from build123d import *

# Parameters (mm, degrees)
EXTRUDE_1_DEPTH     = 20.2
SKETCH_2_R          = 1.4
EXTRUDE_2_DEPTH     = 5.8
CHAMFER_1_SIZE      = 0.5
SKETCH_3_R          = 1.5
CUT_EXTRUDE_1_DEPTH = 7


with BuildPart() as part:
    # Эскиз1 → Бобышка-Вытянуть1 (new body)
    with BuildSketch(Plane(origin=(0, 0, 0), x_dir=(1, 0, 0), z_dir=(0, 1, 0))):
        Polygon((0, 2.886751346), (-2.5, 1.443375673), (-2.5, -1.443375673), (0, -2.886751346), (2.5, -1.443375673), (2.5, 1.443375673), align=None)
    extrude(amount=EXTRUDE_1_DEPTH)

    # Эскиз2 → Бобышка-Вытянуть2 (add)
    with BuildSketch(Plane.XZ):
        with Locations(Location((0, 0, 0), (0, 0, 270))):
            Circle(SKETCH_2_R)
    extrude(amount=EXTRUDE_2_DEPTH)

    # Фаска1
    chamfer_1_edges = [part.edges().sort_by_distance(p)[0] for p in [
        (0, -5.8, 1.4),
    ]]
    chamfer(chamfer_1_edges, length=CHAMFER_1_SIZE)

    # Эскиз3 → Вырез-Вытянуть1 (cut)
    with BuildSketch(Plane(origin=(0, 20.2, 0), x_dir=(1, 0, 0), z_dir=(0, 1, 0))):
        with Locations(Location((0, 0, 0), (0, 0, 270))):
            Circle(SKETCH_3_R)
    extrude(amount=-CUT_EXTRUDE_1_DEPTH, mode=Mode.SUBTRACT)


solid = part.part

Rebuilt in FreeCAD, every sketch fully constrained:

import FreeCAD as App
import Part
import Sketcher

V = App.Vector
Q = App.Units.Quantity


def edges_at(feature, points):
    """Names of the edges that pass closest to the given points."""
    edges = feature.Shape.Edges
    near = lambda p: min(range(len(edges)), key=lambda i: edges[i].distToShape(Part.Vertex(*p))[0])
    return sorted({f"Edge{near(p) + 1}" for p in points})

doc = App.newDocument("Part")
body = doc.addObject("PartDesign::Body", "Body")

# Sketch on XZ plane
sketch1 = body.newObject("Sketcher::SketchObject", "Sketch")
sketch1.AttachmentSupport = (doc.getObject("XZ_Plane"), [""])
sketch1.MapMode = "FlatFace"
sketch1.addGeometry([
    Part.LineSegment(V(0, -2.9, 0), V(-2.5, -1.4, 0)),  # 0
    Part.LineSegment(V(-2.5, -1.4, 0), V(-2.5, 1.4, 0)),  # 1
    Part.LineSegment(V(-2.5, 1.4, 0), V(0, 2.9, 0)),  # 2
    Part.LineSegment(V(0, 2.9, 0), V(2.5, 1.4, 0)),  # 3
    Part.LineSegment(V(2.5, 1.4, 0), V(2.5, -1.4, 0)),  # 4
    Part.LineSegment(V(2.5, -1.4, 0), V(0, -2.9, 0)),  # 5
], False)
sketch1.addConstraint([
    Sketcher.Constraint("Coincident", 0, 2, 1, 1),
    Sketcher.Constraint("Coincident", 1, 2, 2, 1),
    Sketcher.Constraint("Coincident", 2, 2, 3, 1),
    Sketcher.Constraint("Coincident", 3, 2, 4, 1),
    Sketcher.Constraint("Coincident", 4, 2, 5, 1),
    Sketcher.Constraint("Coincident", 5, 2, 0, 1),
    Sketcher.Constraint("Vertical", 1),
    Sketcher.Constraint("Vertical", 4),
    Sketcher.Constraint("Symmetric", 0, 2, 3, 2, -1, 1),
    Sketcher.Constraint("Symmetric", 2, 2, 5, 2, -1, 1),
    Sketcher.Constraint("PointOnObject", 2, 2, -2),
    Sketcher.Constraint("Parallel", 2, 5),
    Sketcher.Constraint("Horizontal", 1, 2, 3, 2),
    Sketcher.Constraint("Angle", 0, Q("150 deg")),
    Sketcher.Constraint("DistanceX", 1, 2, 3, 2, 5.0),
    Sketcher.Constraint("DistanceY", 1, 1, 1, 2, 2.886751),
])
pad1 = body.newObject("PartDesign::Pad", "Pad")
pad1.Profile = sketch1
pad1.Length = 20.2
pad1.Reversed = True

# Sketch on XZ plane
sketch2 = body.newObject("Sketcher::SketchObject", "Sketch001")
sketch2.AttachmentSupport = (doc.getObject("XZ_Plane"), [""])
sketch2.MapMode = "FlatFace"
sketch2.addGeometry(Part.Circle(V(0, 0, 0), V(0, 0, 1), 1.4), False)
sketch2.addConstraint([
    Sketcher.Constraint("Coincident", 0, 3, -1, 1),
    Sketcher.Constraint("Diameter", 0, 2.8),
])
pad2 = body.newObject("PartDesign::Pad", "Pad001")
pad2.Profile = sketch2
pad2.Length = 5.8
doc.recompute()

chamfer = body.newObject("PartDesign::Chamfer", "Chamfer")
chamfer.Base = (pad2, edges_at(pad2, [(0, -5.8, 1.4)]))
chamfer.Size = 0.5

# Sketch on XZ plane
sketch3 = body.newObject("Sketcher::SketchObject", "Sketch002")
sketch3.AttachmentSupport = (doc.getObject("XZ_Plane"), [""])
sketch3.MapMode = "FlatFace"
sketch3.AttachmentOffset = App.Placement(V(0, 0, -20.2), App.Rotation())
sketch3.addGeometry(Part.Circle(V(0, 0, 0), V(0, 0, 1), 1.5), False)
sketch3.addConstraint([
    Sketcher.Constraint("Coincident", 0, 3, -1, 1),
    Sketcher.Constraint("Diameter", 0, 3.0),
])
pocket1 = body.newObject("PartDesign::Pocket", "Pocket")
pocket1.Profile = sketch3
pocket1.Length = 7
pocket1.Reversed = True

doc.recompute()
